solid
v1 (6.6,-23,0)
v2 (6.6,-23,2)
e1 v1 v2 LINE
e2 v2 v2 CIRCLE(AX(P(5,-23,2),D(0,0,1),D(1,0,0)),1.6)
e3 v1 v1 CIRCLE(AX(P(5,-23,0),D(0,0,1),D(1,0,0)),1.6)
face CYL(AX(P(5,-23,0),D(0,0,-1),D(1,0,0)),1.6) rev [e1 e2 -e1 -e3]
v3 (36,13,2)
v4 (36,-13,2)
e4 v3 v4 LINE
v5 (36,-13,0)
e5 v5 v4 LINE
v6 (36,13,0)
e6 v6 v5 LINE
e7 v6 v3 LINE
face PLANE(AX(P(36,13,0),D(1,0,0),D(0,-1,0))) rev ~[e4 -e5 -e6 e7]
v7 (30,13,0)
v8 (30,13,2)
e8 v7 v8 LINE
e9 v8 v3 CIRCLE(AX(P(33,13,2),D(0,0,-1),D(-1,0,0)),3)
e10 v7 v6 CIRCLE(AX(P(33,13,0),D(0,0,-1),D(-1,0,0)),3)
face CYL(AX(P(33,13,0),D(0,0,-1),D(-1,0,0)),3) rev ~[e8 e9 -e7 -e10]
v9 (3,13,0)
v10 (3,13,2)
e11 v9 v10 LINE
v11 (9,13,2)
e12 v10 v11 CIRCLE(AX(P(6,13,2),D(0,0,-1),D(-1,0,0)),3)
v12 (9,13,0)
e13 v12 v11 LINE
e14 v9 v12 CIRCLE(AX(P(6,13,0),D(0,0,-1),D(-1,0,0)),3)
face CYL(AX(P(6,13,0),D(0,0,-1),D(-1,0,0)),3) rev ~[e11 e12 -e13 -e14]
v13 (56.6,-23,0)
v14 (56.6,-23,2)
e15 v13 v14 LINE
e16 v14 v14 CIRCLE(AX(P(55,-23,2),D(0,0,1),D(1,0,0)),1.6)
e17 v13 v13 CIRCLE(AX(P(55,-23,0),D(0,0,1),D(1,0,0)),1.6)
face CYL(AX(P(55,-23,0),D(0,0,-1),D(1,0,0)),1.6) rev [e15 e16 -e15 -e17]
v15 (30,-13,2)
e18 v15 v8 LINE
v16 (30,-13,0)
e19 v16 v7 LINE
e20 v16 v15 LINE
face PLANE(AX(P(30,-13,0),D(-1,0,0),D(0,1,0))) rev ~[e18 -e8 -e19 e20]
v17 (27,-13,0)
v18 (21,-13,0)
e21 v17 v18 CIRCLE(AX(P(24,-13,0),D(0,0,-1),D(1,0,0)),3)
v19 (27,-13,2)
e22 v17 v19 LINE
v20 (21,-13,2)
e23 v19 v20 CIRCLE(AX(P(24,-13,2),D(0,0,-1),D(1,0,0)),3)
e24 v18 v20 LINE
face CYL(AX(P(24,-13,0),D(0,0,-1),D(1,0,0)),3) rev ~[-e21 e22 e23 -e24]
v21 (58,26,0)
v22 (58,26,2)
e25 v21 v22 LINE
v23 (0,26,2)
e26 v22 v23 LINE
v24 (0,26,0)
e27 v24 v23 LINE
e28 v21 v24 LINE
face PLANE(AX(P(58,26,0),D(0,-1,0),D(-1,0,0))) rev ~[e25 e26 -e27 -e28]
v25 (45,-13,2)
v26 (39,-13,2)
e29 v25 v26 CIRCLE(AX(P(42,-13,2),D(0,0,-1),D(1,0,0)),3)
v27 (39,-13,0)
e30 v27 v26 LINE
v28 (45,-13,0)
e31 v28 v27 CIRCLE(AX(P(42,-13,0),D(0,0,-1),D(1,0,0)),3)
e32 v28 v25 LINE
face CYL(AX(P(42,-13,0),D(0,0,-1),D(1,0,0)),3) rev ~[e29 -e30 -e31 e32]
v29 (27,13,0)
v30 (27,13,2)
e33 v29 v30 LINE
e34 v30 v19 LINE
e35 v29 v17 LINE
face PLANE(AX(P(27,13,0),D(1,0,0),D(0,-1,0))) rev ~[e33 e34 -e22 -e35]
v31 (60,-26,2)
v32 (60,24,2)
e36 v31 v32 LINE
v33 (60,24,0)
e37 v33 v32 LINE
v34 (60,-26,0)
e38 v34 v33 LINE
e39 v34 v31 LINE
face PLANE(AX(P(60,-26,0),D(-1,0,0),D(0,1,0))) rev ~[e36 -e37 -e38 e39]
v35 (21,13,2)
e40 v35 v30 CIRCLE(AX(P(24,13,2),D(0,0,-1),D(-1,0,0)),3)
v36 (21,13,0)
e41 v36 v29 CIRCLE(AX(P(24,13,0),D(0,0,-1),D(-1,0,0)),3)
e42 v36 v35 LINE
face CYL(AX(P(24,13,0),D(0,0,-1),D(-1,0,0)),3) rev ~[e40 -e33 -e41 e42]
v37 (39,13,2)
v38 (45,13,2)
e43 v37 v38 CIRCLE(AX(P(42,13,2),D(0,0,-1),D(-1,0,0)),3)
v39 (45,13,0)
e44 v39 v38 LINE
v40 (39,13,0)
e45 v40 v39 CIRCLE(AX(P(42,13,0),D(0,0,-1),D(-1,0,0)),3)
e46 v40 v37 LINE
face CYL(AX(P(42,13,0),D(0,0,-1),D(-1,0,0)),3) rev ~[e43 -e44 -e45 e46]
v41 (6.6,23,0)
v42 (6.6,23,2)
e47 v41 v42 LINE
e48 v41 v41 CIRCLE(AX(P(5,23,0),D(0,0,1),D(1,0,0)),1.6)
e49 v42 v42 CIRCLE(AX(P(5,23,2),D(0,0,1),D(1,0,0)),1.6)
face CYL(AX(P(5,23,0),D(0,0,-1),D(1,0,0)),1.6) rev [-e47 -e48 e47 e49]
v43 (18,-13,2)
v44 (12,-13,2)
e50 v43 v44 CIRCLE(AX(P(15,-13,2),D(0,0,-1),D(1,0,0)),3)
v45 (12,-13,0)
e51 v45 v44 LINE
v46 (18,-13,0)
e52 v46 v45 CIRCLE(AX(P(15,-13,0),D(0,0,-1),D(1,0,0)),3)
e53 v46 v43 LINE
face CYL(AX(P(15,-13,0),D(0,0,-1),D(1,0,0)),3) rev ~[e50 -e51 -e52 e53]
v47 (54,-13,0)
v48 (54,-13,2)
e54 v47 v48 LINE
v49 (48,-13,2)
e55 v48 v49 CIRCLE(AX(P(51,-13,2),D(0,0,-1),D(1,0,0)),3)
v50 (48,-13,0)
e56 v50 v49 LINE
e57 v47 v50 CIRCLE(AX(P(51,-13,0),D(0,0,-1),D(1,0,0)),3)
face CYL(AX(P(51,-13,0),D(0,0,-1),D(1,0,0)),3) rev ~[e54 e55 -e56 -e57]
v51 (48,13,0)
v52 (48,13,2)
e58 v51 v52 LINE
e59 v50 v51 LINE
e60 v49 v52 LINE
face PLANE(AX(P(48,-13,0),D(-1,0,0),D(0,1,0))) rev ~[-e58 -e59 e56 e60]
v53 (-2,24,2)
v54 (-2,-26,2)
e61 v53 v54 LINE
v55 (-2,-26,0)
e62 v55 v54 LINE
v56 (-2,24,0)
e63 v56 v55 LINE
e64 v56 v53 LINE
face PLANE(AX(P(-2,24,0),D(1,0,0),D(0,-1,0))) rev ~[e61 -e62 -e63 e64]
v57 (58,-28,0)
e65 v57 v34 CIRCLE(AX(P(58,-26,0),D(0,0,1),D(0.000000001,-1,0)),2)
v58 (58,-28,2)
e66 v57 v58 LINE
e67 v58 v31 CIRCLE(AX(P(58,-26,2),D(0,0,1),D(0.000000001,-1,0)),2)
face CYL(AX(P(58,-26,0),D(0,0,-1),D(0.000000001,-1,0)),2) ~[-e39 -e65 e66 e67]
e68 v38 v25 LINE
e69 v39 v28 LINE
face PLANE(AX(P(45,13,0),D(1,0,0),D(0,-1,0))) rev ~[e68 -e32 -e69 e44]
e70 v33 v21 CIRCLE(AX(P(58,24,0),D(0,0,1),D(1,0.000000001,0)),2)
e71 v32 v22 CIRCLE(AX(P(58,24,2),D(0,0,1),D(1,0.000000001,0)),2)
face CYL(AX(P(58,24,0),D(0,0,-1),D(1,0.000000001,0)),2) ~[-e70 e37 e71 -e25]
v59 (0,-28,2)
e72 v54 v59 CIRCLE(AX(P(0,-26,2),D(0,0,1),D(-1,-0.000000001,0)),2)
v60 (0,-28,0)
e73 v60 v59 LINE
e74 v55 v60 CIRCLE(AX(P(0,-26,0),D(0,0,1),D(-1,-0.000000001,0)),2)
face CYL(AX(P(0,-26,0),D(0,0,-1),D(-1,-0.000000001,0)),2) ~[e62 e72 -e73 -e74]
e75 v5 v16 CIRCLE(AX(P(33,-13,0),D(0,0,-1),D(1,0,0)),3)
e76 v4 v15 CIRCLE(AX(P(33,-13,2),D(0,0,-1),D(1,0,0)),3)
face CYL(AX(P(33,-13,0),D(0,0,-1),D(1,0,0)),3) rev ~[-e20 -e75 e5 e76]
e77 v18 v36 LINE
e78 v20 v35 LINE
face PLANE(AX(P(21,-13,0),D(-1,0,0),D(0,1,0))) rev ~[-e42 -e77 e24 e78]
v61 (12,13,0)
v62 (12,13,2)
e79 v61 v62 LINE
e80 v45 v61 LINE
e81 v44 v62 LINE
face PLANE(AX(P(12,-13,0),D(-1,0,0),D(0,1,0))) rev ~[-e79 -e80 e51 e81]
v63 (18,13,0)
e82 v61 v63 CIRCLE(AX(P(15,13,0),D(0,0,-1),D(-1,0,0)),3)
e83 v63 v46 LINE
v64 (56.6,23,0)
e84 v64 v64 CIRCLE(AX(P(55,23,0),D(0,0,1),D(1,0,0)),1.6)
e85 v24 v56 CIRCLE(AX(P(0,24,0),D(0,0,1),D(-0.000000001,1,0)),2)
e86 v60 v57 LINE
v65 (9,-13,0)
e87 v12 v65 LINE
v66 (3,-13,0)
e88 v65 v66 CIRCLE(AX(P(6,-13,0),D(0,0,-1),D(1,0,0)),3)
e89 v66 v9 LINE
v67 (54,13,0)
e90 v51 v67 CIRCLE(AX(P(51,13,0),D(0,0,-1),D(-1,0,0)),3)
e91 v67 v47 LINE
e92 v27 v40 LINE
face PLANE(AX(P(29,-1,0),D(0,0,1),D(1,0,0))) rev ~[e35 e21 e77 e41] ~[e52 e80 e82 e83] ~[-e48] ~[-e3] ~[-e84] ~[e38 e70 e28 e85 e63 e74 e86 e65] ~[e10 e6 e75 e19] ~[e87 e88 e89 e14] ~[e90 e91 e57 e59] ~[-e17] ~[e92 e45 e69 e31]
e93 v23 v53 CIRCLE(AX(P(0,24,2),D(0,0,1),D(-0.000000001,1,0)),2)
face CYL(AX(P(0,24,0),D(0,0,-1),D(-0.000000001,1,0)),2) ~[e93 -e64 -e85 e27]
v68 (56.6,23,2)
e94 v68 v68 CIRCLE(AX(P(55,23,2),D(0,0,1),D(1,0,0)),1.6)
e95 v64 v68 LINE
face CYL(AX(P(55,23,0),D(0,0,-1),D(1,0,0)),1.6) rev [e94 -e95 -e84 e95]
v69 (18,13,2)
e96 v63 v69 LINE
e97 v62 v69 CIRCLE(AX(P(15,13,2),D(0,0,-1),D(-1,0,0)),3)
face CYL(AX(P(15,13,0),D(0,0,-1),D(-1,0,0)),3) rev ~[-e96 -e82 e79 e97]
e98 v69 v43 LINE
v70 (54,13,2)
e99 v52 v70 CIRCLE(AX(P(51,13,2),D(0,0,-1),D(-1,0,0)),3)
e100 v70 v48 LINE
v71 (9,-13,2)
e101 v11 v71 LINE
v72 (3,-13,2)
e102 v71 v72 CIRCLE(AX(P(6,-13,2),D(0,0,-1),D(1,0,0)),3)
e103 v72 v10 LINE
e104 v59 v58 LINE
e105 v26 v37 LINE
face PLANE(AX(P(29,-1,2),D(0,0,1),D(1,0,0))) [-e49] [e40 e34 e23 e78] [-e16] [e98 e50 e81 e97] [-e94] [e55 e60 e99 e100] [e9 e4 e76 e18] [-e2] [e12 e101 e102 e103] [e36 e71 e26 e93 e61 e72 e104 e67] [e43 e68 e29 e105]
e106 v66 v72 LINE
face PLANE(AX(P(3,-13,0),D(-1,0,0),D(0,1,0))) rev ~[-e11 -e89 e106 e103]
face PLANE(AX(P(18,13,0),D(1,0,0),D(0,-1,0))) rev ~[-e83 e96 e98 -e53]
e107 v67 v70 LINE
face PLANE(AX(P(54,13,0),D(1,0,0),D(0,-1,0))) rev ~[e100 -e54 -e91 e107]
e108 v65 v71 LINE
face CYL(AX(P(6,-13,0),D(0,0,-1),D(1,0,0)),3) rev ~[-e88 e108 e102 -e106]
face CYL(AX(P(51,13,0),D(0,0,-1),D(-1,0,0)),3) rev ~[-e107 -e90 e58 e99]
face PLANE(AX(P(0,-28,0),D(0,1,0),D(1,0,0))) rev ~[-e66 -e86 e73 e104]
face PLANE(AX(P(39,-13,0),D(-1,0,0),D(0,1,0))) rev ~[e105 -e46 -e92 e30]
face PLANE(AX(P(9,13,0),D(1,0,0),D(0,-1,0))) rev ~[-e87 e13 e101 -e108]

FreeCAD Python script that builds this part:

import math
import FreeCAD as App
import Part
import Sketcher
from FreeCAD import Vector
Q = App.Units.Quantity

doc = App.newDocument("Part")
body = doc.addObject("PartDesign::Body", "Body")

# Sketch on XY plane
sketch1 = body.newObject("Sketcher::SketchObject", "Sketch")
sketch1.AttachmentSupport = (doc.getObject("XY_Plane"), [""])
sketch1.MapMode = "FlatFace"
sketch1.addGeometry([
    Part.LineSegment(Vector(0, -28, 0), Vector(58, -28, 0)),  # 0
    Part.ArcOfCircle(Part.Circle(Vector(58, -26, 0), Vector(0, 0, 1), 2), math.radians(-90), math.radians(0)),  # 1
    Part.LineSegment(Vector(60, -26, 0), Vector(60, 24, 0)),  # 2
    Part.ArcOfCircle(Part.Circle(Vector(58, 24, 0), Vector(0, 0, 1), 2), math.radians(0), math.radians(90)),  # 3
    Part.LineSegment(Vector(58, 26, 0), Vector(0, 26, 0)),  # 4
    Part.ArcOfCircle(Part.Circle(Vector(0, 24, 0), Vector(0, 0, 1), 2), math.radians(90), math.radians(180)),  # 5
    Part.LineSegment(Vector(-2, 24, 0), Vector(-2, -26, 0)),  # 6
    Part.ArcOfCircle(Part.Circle(Vector(0, -26, 0), Vector(0, 0, 1), 2), math.radians(-180), math.radians(-90)),  # 7
    Part.Circle(Vector(5, -23, 0), Vector(0, 0, 1), 1.6),  # 8
    Part.Circle(Vector(55, -23, 0), Vector(0, 0, 1), 1.6),  # 9
    Part.ArcOfCircle(Part.Circle(Vector(6, 13, 0), Vector(0, 0, 1), 3), math.radians(0), math.radians(180)),  # 10
    Part.LineSegment(Vector(9, 13, 0), Vector(9, -13, 0)),  # 11
    Part.ArcOfCircle(Part.Circle(Vector(6, -13, 0), Vector(0, 0, 1), 3), math.radians(180), math.radians(360)),  # 12
    Part.LineSegment(Vector(3, -13, 0), Vector(3, 13, 0)),  # 13
    Part.ArcOfCircle(Part.Circle(Vector(15, 13, 0), Vector(0, 0, 1), 3), math.radians(0), math.radians(180)),  # 14
    Part.LineSegment(Vector(18, 13, 0), Vector(18, -13, 0)),  # 15
    Part.ArcOfCircle(Part.Circle(Vector(15, -13, 0), Vector(0, 0, 1), 3), math.radians(180), math.radians(360)),  # 16
    Part.LineSegment(Vector(12, -13, 0), Vector(12, 13, 0)),  # 17
    Part.ArcOfCircle(Part.Circle(Vector(24, 13, 0), Vector(0, 0, 1), 3), math.radians(0), math.radians(180)),  # 18
    Part.LineSegment(Vector(27, 13, 0), Vector(27, -13, 0)),  # 19
    Part.ArcOfCircle(Part.Circle(Vector(24, -13, 0), Vector(0, 0, 1), 3), math.radians(180), math.radians(360)),  # 20
    Part.LineSegment(Vector(21, -13, 0), Vector(21, 13, 0)),  # 21
    Part.Circle(Vector(5, 23, 0), Vector(0, 0, 1), 1.6),  # 22
    Part.ArcOfCircle(Part.Circle(Vector(33, 13, 0), Vector(0, 0, 1), 3), math.radians(0), math.radians(180)),  # 23
    Part.LineSegment(Vector(36, 13, 0), Vector(36, -13, 0)),  # 24
    Part.ArcOfCircle(Part.Circle(Vector(33, -13, 0), Vector(0, 0, 1), 3), math.radians(180), math.radians(360)),  # 25
    Part.LineSegment(Vector(30, -13, 0), Vector(30, 13, 0)),  # 26
    Part.ArcOfCircle(Part.Circle(Vector(42, 13, 0), Vector(0, 0, 1), 3), math.radians(0), math.radians(180)),  # 27
    Part.LineSegment(Vector(45, 13, 0), Vector(45, -13, 0)),  # 28
    Part.ArcOfCircle(Part.Circle(Vector(42, -13, 0), Vector(0, 0, 1), 3), math.radians(180), math.radians(360)),  # 29
    Part.LineSegment(Vector(39, -13, 0), Vector(39, 13, 0)),  # 30
    Part.ArcOfCircle(Part.Circle(Vector(51, 13, 0), Vector(0, 0, 1), 3), math.radians(0), math.radians(180)),  # 31
    Part.LineSegment(Vector(54, 13, 0), Vector(54, -13, 0)),  # 32
    Part.ArcOfCircle(Part.Circle(Vector(51, -13, 0), Vector(0, 0, 1), 3), math.radians(180), math.radians(360)),  # 33
    Part.LineSegment(Vector(48, -13, 0), Vector(48, 13, 0)),  # 34
    Part.Circle(Vector(55, 23, 0), Vector(0, 0, 1), 1.6),  # 35
], False)
sketch1.addConstraint([
    Sketcher.Constraint("Tangent", 0, 2, 1, 1),
    Sketcher.Constraint("Tangent", 1, 2, 2, 1),
    Sketcher.Constraint("Tangent", 2, 2, 3, 1),
    Sketcher.Constraint("Tangent", 3, 2, 4, 1),
    Sketcher.Constraint("Tangent", 4, 2, 5, 1),
    Sketcher.Constraint("Tangent", 5, 2, 6, 1),
    Sketcher.Constraint("Tangent", 6, 2, 7, 1),
    Sketcher.Constraint("Tangent", 7, 2, 0, 1),
    Sketcher.Constraint("Tangent", 10, 1, 11, 1),
    Sketcher.Constraint("Tangent", 11, 2, 12, 2),
    Sketcher.Constraint("Tangent", 12, 1, 13, 1),
    Sketcher.Constraint("Tangent", 13, 2, 10, 2),
    Sketcher.Constraint("Tangent", 14, 1, 15, 1),
    Sketcher.Constraint("Tangent", 15, 2, 16, 2),
    Sketcher.Constraint("Tangent", 16, 1, 17, 1),
    Sketcher.Constraint("Tangent", 17, 2, 14, 2),
    Sketcher.Constraint("Tangent", 18, 1, 19, 1),
    Sketcher.Constraint("Tangent", 19, 2, 20, 2),
    Sketcher.Constraint("Tangent", 20, 1, 21, 1),
    Sketcher.Constraint("Tangent", 21, 2, 18, 2),
    Sketcher.Constraint("Tangent", 23, 1, 24, 1),
    Sketcher.Constraint("Tangent", 24, 2, 25, 2),
    Sketcher.Constraint("Tangent", 25, 1, 26, 1),
    Sketcher.Constraint("Tangent", 26, 2, 23, 2),
    Sketcher.Constraint("Tangent", 27, 1, 28, 1),
    Sketcher.Constraint("Tangent", 28, 2, 29, 2),
    Sketcher.Constraint("Tangent", 29, 1, 30, 1),
    Sketcher.Constraint("Tangent", 30, 2, 27, 2),
    Sketcher.Constraint("Tangent", 31, 1, 32, 1),
    Sketcher.Constraint("Tangent", 32, 2, 33, 2),
    Sketcher.Constraint("Tangent", 33, 1, 34, 1),
    Sketcher.Constraint("Tangent", 34, 2, 31, 2),
    Sketcher.Constraint("Horizontal", 0),
    Sketcher.Constraint("Vertical", 2),
    Sketcher.Constraint("Horizontal", 4),
    Sketcher.Constraint("Vertical", 6),
    Sketcher.Constraint("Vertical", 11),
    Sketcher.Constraint("Vertical", 13),
    Sketcher.Constraint("Vertical", 15),
    Sketcher.Constraint("Vertical", 17),
    Sketcher.Constraint("Vertical", 19),
    Sketcher.Constraint("Vertical", 21),
    Sketcher.Constraint("Vertical", 24),
    Sketcher.Constraint("Vertical", 26),
    Sketcher.Constraint("Vertical", 28),
    Sketcher.Constraint("Vertical", 30),
    Sketcher.Constraint("Vertical", 32),
    Sketcher.Constraint("Vertical", 34),
    Sketcher.Constraint("Equal", 1, 3),
    Sketcher.Constraint("Equal", 3, 5),
    Sketcher.Constraint("Equal", 5, 7),
    Sketcher.Constraint("Equal", 8, 9),
    Sketcher.Constraint("Equal", 12, 14),
    Sketcher.Constraint("Equal", 16, 18),
    Sketcher.Constraint("Equal", 9, 22),
    Sketcher.Constraint("Equal", 20, 23),
    Sketcher.Constraint("Equal", 25, 27),
    Sketcher.Constraint("Equal", 29, 31),
    Sketcher.Constraint("Equal", 22, 35),
    Sketcher.Constraint("Symmetric", 8, 3, 22, 3, -1),
    Sketcher.Constraint("Symmetric", 9, 3, 35, 3, -1),
    Sketcher.Constraint("PointOnObject", 5, 3, -2),
    Sketcher.Constraint("Horizontal", 8, 3, 9, 3),
    Sketcher.Constraint("Horizontal", 10, 3, 14, 3),
    Sketcher.Constraint("Horizontal", 12, 3, 16, 3),
    Sketcher.Constraint("Horizontal", 14, 3, 18, 3),
    Sketcher.Constraint("Horizontal", 16, 3, 20, 3),
    Sketcher.Constraint("Horizontal", 18, 3, 23, 3),
    Sketcher.Constraint("Horizontal", 20, 3, 25, 3),
    Sketcher.Constraint("Horizontal", 23, 3, 27, 3),
    Sketcher.Constraint("Horizontal", 25, 3, 29, 3),
    Sketcher.Constraint("Horizontal", 27, 3, 31, 3),
    Sketcher.Constraint("Horizontal", 29, 3, 33, 3),
    Sketcher.Constraint("Radius", 1, Q("2 mm")),
    Sketcher.Constraint("Radius", 10, Q("3 mm")),
    Sketcher.Constraint("Diameter", 8, Q("3.2 mm")),
    Sketcher.Constraint("DistanceX", 0, 1, 0, 2, Q("58 mm")),
    Sketcher.Constraint("DistanceY", 2, 1, 2, 2, Q("50 mm")),
    Sketcher.Constraint("DistanceY", 11, 2, 11, 1, Q("26 mm")),
    Sketcher.Constraint("DistanceY", 1, 3, -1, 1, Q("26 mm")),
    Sketcher.Constraint("DistanceX", -1, 1, 8, 3, Q("5 mm")),
    Sketcher.Constraint("DistanceY", 8, 3, -1, 1, Q("23 mm")),
    Sketcher.Constraint("DistanceX", -1, 1, 9, 3, Q("55 mm")),
    Sketcher.Constraint("DistanceX", -1, 1, 10, 3, Q("6 mm")),
    Sketcher.Constraint("DistanceY", -1, 1, 10, 3, Q("13 mm")),
    Sketcher.Constraint("DistanceX", -1, 1, 14, 3, Q("15 mm")),
    Sketcher.Constraint("DistanceX", -1, 1, 18, 3, Q("24 mm")),
    Sketcher.Constraint("DistanceX", -1, 1, 23, 3, Q("33 mm")),
    Sketcher.Constraint("DistanceX", -1, 1, 27, 3, Q("42 mm")),
    Sketcher.Constraint("DistanceX", -1, 1, 31, 3, Q("51 mm")),
])
pad1 = body.newObject("PartDesign::Pad", "Pad")
pad1.Profile = sketch1
pad1.Length = 2

doc.recompute()
